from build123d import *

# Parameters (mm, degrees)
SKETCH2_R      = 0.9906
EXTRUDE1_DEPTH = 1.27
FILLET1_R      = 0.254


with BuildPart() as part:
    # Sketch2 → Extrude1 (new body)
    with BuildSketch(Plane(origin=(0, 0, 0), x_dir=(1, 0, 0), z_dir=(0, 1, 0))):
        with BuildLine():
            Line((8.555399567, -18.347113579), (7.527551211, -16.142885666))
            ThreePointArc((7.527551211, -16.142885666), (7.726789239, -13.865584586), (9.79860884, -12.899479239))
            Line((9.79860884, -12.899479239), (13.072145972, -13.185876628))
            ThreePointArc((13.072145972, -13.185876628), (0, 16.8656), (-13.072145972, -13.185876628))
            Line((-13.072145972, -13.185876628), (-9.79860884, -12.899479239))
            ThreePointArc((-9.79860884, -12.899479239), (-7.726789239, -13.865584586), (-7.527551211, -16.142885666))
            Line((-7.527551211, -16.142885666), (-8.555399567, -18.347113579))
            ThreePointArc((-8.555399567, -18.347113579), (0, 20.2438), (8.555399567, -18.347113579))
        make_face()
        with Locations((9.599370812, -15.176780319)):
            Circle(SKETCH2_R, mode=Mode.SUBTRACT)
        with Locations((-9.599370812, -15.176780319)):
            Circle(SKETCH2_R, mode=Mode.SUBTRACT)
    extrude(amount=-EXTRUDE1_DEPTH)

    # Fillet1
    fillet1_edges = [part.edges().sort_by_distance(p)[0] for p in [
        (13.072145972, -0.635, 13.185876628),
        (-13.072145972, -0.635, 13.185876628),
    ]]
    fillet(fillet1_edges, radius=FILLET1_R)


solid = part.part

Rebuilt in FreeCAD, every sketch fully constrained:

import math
import FreeCAD as App
import Part
import Sketcher
Q = App.Units.Quantity


def edges_at(feature, points):
    """Names of the edges that pass closest to the given points."""
    edges = feature.Shape.Edges
    near = lambda p: min(range(len(edges)), key=lambda i: edges[i].distToShape(Part.Vertex(*p))[0])
    return sorted({f"Edge{near(p) + 1}" for p in points})

doc = App.newDocument("Part")
body = doc.addObject("PartDesign::Body", "Body")

# Sketch on XZ plane
sketch1 = body.newObject("Sketcher::SketchObject", "Sketch")
sketch1.AttachmentSupport = (doc.getObject("XZ_Plane"), [""])
sketch1.MapMode = "FlatFace"
sketch1.addGeometry(Part.LineSegment(App.Vector(7.5, 16.1, 0), App.Vector(8.6, 18.3, 0)), False)
sketch1.addGeometry(Part.ArcOfCircle(Part.Circle(App.Vector(0, 0, 0), App.Vector(0, 0, 1), 20.2), math.radians(115), math.radians(425)), False)
sketch1.addGeometry(Part.LineSegment(App.Vector(-8.6, 18.3, 0), App.Vector(-7.5, 16.1, 0)), False)
sketch1.addGeometry(Part.ArcOfCircle(Part.Circle(App.Vector(-9.6, 15.2, 0), App.Vector(0, 0, 1), 2.3), math.radians(-95), math.radians(25)), False)
sketch1.addGeometry(Part.LineSegment(App.Vector(-9.8, 12.9, 0), App.Vector(-13.1, 13.2, 0)), False)
sketch1.addGeometry(Part.ArcOfCircle(Part.Circle(App.Vector(0, 1, 0), App.Vector(0, 0, 1), 17.9), math.radians(137), math.radians(403)), False)
sketch1.addGeometry(Part.LineSegment(App.Vector(13.1, 13.2, 0), App.Vector(9.8, 12.9, 0)), False)
sketch1.addGeometry(Part.ArcOfCircle(Part.Circle(App.Vector(9.6, 15.2, 0), App.Vector(0, 0, 1), 2.3), math.radians(155), math.radians(275)), False)
sketch1.addGeometry(Part.Circle(App.Vector(9.6, 15.2, 0), App.Vector(0, 0, 1), 1), False)
sketch1.addGeometry(Part.Circle(App.Vector(-9.6, 15.2, 0), App.Vector(0, 0, 1), 1), False)
sketch1.addConstraint(Sketcher.Constraint("Coincident", 0, 2, 1, 2))
sketch1.addConstraint(Sketcher.Constraint("Coincident", 1, 1, 2, 1))
sketch1.addConstraint(Sketcher.Constraint("Tangent", 2, 2, 3, 2))
sketch1.addConstraint(Sketcher.Constraint("Tangent", 3, 1, 4, 1))
sketch1.addConstraint(Sketcher.Constraint("Coincident", 4, 2, 5, 1))
sketch1.addConstraint(Sketcher.Constraint("Coincident", 5, 2, 6, 1))
sketch1.addConstraint(Sketcher.Constraint("Tangent", 6, 2, 7, 2))
sketch1.addConstraint(Sketcher.Constraint("Tangent", 7, 1, 0, 1))
sketch1.addConstraint(Sketcher.Constraint("Coincident", 1, 3, -1, 1))
sketch1.addConstraint(Sketcher.Constraint("Coincident", 8, 3, 7, 3))
sketch1.addConstraint(Sketcher.Constraint("Coincident", 9, 3, 3, 3))
sketch1.addConstraint(Sketcher.Constraint("Equal", 3, 7))
sketch1.addConstraint(Sketcher.Constraint("Equal", 8, 9))
sketch1.addConstraint(Sketcher.Constraint("Symmetric", 3, 3, 7, 3, -2))
sketch1.addConstraint(Sketcher.Constraint("Symmetric", 4, 2, 5, 2, -2))
sketch1.addConstraint(Sketcher.Constraint("Horizontal", 0, 2, 1, 1))
sketch1.addConstraint(Sketcher.Constraint("Radius", 3, Q("0.09 in")))
sketch1.addConstraint(Sketcher.Constraint("Diameter", 8, Q("0.078 in")))
sketch1.addConstraint(Sketcher.Constraint("Angle", 0, Q("65 deg")))
sketch1.addConstraint(Sketcher.Constraint("Angle", 4, Q("175 deg")))
sketch1.addConstraint(Sketcher.Constraint("Radius", 1, Q("0.797 in")))
sketch1.addConstraint(Sketcher.Constraint("Radius", 5, Q("17.868876 mm")))
sketch1.addConstraint(Sketcher.Constraint("DistanceX", -1, 1, 0, 2, Q("8.5554 mm")))
sketch1.addConstraint(Sketcher.Constraint("DistanceY", 5, 3, 5, 2, Q("12.1826 mm")))
sketch1.addConstraint(Sketcher.Constraint("Distance", 4, Q("3.286042 mm")))
pad1 = body.newObject("PartDesign::Pad", "Pad")
pad1.Profile = sketch1
pad1.Length = Q("0.05 in")
doc.recompute()

fillet = body.newObject("PartDesign::Fillet", "Fillet")
fillet.Base = (pad1, edges_at(pad1, [(13.072, -0.635, 13.186), (-13.072, -0.635, 13.186)]))
fillet.Radius = Q("0.01 in")

doc.recompute()
